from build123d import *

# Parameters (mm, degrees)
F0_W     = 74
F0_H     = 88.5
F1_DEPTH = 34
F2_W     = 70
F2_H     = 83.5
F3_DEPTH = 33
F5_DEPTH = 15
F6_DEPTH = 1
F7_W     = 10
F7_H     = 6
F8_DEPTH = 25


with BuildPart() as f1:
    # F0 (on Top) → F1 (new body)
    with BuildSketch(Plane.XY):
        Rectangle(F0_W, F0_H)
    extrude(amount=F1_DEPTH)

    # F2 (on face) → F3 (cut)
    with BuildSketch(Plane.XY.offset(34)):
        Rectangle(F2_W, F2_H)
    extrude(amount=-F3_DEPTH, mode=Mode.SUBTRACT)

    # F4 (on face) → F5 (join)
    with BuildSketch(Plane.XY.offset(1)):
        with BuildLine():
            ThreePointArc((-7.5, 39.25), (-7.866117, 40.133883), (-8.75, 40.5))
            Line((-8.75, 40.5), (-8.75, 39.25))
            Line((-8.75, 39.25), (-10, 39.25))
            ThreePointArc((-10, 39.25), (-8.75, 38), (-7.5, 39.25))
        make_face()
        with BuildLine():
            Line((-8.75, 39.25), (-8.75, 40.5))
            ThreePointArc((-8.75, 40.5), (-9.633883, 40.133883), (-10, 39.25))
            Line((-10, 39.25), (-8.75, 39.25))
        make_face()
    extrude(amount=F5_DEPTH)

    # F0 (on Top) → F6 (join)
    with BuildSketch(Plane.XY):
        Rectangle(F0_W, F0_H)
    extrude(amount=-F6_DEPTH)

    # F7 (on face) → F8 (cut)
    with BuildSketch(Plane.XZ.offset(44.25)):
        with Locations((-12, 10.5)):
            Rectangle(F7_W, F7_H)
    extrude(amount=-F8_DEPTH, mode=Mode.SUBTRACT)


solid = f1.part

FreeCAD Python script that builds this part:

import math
import FreeCAD as App
import Part
import Sketcher


def add_polygon(sketch, points):
    """Adds a closed chain of lines whose ends are joined by coincident constraints."""
    first, n = sketch.GeometryCount, len(points)
    for a, b in zip(points, points[1:] + points[:1]):
        sketch.addGeometry(Part.LineSegment(App.Vector(*a, 0), App.Vector(*b, 0)), False)
    for i in range(n):
        sketch.addConstraint(Sketcher.Constraint("Coincident", first + i, 2, first + (i + 1) % n, 1))

doc = App.newDocument("Part")
body = doc.addObject("PartDesign::Body", "Body")

# Sketch on XY plane
sketch1 = body.newObject("Sketcher::SketchObject", "Sketch")
sketch1.AttachmentSupport = (doc.getObject("XY_Plane"), [""])
sketch1.MapMode = "FlatFace"
add_polygon(sketch1, [(-37, 44), (-37, -44), (37, -44), (37, 44)])  # lines 0-3
sketch1.addConstraint([
    Sketcher.Constraint("Vertical", 0),
    Sketcher.Constraint("Horizontal", 1),
    Sketcher.Constraint("Vertical", 2),
    Sketcher.Constraint("Horizontal", 3),
    Sketcher.Constraint("Symmetric", 0, 2, 2, 2, -1, 1),
    Sketcher.Constraint("DistanceX", 1, 1, 1, 2, 74.0),
    Sketcher.Constraint("DistanceY", 0, 2, 0, 1, 88.5),
])
pad1 = body.newObject("PartDesign::Pad", "Pad")
pad1.Profile = sketch1
pad1.Length = 34

# Sketch on XY plane
sketch2 = body.newObject("Sketcher::SketchObject", "Sketch001")
sketch2.AttachmentSupport = (doc.getObject("XY_Plane"), [""])
sketch2.MapMode = "FlatFace"
sketch2.AttachmentOffset = App.Placement(App.Vector(0, 0, 34), App.Rotation())
add_polygon(sketch2, [(-35, 42), (-35, -42), (35, -42), (35, 42)])  # lines 0-3
sketch2.addConstraint([
    Sketcher.Constraint("Vertical", 0),
    Sketcher.Constraint("Horizontal", 1),
    Sketcher.Constraint("Vertical", 2),
    Sketcher.Constraint("Horizontal", 3),
    Sketcher.Constraint("Symmetric", 0, 2, 2, 2, -1, 1),
    Sketcher.Constraint("DistanceX", 1, 1, 1, 2, 70.0),
    Sketcher.Constraint("DistanceY", 0, 2, 0, 1, 83.5),
])
pocket1 = body.newObject("PartDesign::Pocket", "Pocket")
pocket1.Profile = sketch2
pocket1.Length = 33

# Sketch on XY plane
sketch3 = body.newObject("Sketcher::SketchObject", "Sketch002")
sketch3.AttachmentSupport = (doc.getObject("XY_Plane"), [""])
sketch3.MapMode = "FlatFace"
sketch3.AttachmentOffset = App.Placement(App.Vector(0, 0, 1), App.Rotation())
sketch3.addGeometry([
    Part.ArcOfCircle(Part.Circle(App.Vector(-8.8, 39.2, 0), App.Vector(0, 0, 1), 1.3), math.radians(0), math.radians(90)),
    Part.ArcOfCircle(Part.Circle(App.Vector(-8.7, 39.2, 0), App.Vector(0, 0, 1), 1.3), math.radians(90), math.radians(180)),
    Part.ArcOfCircle(Part.Circle(App.Vector(-8.8, 39.2, 0), App.Vector(0, 0, 1), 1.2), math.radians(180), math.radians(360)),
], False)
sketch3.addConstraint([
    Sketcher.Constraint("Coincident", 0, 2, 1, 1),
    Sketcher.Constraint("Tangent", 1, 2, 2, 1),
    Sketcher.Constraint("Tangent", 2, 2, 0, 1),
    Sketcher.Constraint("Equal", 1, 2),
    Sketcher.Constraint("Horizontal", 2, 3, 1, 2),
    Sketcher.Constraint("Horizontal", 1, 2, 2, 2),
    Sketcher.Constraint("Vertical", 2, 3, 0, 2),
    Sketcher.Constraint("Radius", 0, 1.250002),
    Sketcher.Constraint("DistanceX", 1, 2, -1, 1, 10.0),
    Sketcher.Constraint("DistanceY", -1, 1, 0, 2, 40.5),
])
pad2 = body.newObject("PartDesign::Pad", "Pad001")
pad2.Profile = sketch3
pad2.Length = 15

# Sketch on XY plane
sketch4 = body.newObject("Sketcher::SketchObject", "Sketch003")
sketch4.AttachmentSupport = (doc.getObject("XY_Plane"), [""])
sketch4.MapMode = "FlatFace"
add_polygon(sketch4, [(-37, 44), (-37, -44), (37, -44), (37, 44)])  # lines 0-3
sketch4.addConstraint([
    Sketcher.Constraint("Vertical", 0),
    Sketcher.Constraint("Horizontal", 1),
    Sketcher.Constraint("Vertical", 2),
    Sketcher.Constraint("Horizontal", 3),
    Sketcher.Constraint("Symmetric", 0, 2, 2, 2, -1, 1),
    Sketcher.Constraint("DistanceX", 1, 1, 1, 2, 74.0),
    Sketcher.Constraint("DistanceY", 0, 2, 0, 1, 88.5),
])
pad3 = body.newObject("PartDesign::Pad", "Pad002")
pad3.Profile = sketch4
pad3.Length = 1
pad3.Reversed = True

# Sketch on XZ plane
sketch5 = body.newObject("Sketcher::SketchObject", "Sketch004")
sketch5.AttachmentSupport = (doc.getObject("XZ_Plane"), [""])
sketch5.MapMode = "FlatFace"
sketch5.AttachmentOffset = App.Placement(App.Vector(0, 0, 44.25), App.Rotation())
add_polygon(sketch5, [(-17, 14), (-17, 8), (-7, 8), (-7, 14)])  # lines 0-3
sketch5.addConstraint([
    Sketcher.Constraint("Vertical", 0),
    Sketcher.Constraint("Horizontal", 1),
    Sketcher.Constraint("Vertical", 2),
    Sketcher.Constraint("Horizontal", 3),
    Sketcher.Constraint("DistanceX", 1, 1, 1, 2, 10.0),
    Sketcher.Constraint("DistanceY", 0, 2, 0, 1, 6.0),
    Sketcher.Constraint("DistanceX", 0, 2, -1, 1, 17.0),
    Sketcher.Constraint("DistanceY", -1, 1, 0, 2, 7.5),
])
pocket2 = body.newObject("PartDesign::Pocket", "Pocket001")
pocket2.Profile = sketch5
pocket2.Length = 25

doc.recompute()
